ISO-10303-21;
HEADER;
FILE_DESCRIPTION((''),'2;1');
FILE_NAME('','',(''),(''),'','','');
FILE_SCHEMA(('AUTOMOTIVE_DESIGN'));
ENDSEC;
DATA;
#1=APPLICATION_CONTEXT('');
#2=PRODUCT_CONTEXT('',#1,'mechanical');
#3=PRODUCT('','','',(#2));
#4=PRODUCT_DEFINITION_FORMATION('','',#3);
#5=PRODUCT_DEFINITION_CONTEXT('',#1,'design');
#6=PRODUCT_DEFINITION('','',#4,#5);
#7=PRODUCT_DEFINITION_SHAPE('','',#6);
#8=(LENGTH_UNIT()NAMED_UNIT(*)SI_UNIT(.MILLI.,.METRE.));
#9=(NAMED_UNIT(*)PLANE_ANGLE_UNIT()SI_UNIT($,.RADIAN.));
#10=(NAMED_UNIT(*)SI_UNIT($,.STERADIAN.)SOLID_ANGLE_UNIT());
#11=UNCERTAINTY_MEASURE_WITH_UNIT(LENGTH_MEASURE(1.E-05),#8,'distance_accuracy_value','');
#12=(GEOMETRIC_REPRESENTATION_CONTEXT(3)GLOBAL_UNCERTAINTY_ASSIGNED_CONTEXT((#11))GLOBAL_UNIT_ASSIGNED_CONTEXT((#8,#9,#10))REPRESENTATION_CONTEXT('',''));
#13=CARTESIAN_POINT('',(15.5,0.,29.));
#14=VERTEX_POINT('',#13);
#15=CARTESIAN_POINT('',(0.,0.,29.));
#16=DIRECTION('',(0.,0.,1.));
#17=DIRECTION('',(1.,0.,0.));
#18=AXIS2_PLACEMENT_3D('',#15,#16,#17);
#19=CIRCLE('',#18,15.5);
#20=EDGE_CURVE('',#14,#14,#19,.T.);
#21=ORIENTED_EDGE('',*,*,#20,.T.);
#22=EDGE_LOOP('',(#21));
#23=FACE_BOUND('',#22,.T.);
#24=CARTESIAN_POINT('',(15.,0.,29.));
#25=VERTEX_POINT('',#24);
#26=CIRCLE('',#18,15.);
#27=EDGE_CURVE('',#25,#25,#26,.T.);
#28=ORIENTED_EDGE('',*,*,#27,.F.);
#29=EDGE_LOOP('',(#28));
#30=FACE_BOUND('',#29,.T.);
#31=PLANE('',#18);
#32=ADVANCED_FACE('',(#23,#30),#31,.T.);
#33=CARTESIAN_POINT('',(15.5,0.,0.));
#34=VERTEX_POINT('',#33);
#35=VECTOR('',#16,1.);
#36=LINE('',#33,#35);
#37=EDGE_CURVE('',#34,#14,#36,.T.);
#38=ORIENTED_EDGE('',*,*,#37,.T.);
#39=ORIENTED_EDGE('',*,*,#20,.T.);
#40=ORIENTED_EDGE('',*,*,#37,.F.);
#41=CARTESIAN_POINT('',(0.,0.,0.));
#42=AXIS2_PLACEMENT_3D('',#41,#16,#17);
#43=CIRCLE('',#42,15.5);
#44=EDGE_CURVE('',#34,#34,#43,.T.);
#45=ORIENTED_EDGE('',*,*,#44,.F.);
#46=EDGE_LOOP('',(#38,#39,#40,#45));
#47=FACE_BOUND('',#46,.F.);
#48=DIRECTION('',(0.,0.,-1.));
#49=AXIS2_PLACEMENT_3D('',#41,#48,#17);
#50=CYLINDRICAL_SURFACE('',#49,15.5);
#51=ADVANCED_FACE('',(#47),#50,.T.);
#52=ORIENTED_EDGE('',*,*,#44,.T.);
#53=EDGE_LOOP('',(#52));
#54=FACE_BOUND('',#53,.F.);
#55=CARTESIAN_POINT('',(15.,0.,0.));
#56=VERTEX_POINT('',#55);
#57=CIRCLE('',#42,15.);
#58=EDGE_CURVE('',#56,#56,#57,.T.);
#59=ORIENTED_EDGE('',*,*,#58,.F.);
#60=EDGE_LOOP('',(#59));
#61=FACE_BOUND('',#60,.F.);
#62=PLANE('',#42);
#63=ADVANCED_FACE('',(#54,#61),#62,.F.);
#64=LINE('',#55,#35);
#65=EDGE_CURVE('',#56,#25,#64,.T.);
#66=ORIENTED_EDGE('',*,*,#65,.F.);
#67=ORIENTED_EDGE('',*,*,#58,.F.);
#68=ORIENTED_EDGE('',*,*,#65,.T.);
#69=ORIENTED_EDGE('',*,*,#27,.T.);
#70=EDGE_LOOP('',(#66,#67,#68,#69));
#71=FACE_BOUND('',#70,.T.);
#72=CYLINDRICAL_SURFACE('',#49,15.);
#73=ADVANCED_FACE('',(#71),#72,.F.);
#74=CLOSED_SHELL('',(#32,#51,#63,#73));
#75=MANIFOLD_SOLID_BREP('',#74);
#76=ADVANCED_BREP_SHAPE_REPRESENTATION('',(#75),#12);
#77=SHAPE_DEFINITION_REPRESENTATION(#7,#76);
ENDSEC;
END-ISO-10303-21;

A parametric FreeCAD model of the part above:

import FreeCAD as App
import Part
import Sketcher
from FreeCAD import Vector

doc = App.newDocument("Part")
body = doc.addObject("PartDesign::Body", "Body")

# Sketch on XY plane
sketch1 = body.newObject("Sketcher::SketchObject", "Sketch")
sketch1.AttachmentSupport = (doc.getObject("XY_Plane"), [""])
sketch1.MapMode = "FlatFace"
sketch1.addGeometry(Part.Circle(Vector(0, 0, 0), Vector(0, 0, 1), 15.5), False)
sketch1.addGeometry(Part.Circle(Vector(0, 0, 0), Vector(0, 0, 1), 15), False)
sketch1.addConstraint(Sketcher.Constraint("Coincident", 0, 3, -1, 1))
sketch1.addConstraint(Sketcher.Constraint("Coincident", 1, 3, -1, 1))
sketch1.addConstraint(Sketcher.Constraint("Diameter", 0, 31.0))
sketch1.addConstraint(Sketcher.Constraint("Diameter", 1, 30.0))
pad1 = body.newObject("PartDesign::Pad", "Pad")
pad1.Profile = sketch1
pad1.Length = 29

doc.recompute()
